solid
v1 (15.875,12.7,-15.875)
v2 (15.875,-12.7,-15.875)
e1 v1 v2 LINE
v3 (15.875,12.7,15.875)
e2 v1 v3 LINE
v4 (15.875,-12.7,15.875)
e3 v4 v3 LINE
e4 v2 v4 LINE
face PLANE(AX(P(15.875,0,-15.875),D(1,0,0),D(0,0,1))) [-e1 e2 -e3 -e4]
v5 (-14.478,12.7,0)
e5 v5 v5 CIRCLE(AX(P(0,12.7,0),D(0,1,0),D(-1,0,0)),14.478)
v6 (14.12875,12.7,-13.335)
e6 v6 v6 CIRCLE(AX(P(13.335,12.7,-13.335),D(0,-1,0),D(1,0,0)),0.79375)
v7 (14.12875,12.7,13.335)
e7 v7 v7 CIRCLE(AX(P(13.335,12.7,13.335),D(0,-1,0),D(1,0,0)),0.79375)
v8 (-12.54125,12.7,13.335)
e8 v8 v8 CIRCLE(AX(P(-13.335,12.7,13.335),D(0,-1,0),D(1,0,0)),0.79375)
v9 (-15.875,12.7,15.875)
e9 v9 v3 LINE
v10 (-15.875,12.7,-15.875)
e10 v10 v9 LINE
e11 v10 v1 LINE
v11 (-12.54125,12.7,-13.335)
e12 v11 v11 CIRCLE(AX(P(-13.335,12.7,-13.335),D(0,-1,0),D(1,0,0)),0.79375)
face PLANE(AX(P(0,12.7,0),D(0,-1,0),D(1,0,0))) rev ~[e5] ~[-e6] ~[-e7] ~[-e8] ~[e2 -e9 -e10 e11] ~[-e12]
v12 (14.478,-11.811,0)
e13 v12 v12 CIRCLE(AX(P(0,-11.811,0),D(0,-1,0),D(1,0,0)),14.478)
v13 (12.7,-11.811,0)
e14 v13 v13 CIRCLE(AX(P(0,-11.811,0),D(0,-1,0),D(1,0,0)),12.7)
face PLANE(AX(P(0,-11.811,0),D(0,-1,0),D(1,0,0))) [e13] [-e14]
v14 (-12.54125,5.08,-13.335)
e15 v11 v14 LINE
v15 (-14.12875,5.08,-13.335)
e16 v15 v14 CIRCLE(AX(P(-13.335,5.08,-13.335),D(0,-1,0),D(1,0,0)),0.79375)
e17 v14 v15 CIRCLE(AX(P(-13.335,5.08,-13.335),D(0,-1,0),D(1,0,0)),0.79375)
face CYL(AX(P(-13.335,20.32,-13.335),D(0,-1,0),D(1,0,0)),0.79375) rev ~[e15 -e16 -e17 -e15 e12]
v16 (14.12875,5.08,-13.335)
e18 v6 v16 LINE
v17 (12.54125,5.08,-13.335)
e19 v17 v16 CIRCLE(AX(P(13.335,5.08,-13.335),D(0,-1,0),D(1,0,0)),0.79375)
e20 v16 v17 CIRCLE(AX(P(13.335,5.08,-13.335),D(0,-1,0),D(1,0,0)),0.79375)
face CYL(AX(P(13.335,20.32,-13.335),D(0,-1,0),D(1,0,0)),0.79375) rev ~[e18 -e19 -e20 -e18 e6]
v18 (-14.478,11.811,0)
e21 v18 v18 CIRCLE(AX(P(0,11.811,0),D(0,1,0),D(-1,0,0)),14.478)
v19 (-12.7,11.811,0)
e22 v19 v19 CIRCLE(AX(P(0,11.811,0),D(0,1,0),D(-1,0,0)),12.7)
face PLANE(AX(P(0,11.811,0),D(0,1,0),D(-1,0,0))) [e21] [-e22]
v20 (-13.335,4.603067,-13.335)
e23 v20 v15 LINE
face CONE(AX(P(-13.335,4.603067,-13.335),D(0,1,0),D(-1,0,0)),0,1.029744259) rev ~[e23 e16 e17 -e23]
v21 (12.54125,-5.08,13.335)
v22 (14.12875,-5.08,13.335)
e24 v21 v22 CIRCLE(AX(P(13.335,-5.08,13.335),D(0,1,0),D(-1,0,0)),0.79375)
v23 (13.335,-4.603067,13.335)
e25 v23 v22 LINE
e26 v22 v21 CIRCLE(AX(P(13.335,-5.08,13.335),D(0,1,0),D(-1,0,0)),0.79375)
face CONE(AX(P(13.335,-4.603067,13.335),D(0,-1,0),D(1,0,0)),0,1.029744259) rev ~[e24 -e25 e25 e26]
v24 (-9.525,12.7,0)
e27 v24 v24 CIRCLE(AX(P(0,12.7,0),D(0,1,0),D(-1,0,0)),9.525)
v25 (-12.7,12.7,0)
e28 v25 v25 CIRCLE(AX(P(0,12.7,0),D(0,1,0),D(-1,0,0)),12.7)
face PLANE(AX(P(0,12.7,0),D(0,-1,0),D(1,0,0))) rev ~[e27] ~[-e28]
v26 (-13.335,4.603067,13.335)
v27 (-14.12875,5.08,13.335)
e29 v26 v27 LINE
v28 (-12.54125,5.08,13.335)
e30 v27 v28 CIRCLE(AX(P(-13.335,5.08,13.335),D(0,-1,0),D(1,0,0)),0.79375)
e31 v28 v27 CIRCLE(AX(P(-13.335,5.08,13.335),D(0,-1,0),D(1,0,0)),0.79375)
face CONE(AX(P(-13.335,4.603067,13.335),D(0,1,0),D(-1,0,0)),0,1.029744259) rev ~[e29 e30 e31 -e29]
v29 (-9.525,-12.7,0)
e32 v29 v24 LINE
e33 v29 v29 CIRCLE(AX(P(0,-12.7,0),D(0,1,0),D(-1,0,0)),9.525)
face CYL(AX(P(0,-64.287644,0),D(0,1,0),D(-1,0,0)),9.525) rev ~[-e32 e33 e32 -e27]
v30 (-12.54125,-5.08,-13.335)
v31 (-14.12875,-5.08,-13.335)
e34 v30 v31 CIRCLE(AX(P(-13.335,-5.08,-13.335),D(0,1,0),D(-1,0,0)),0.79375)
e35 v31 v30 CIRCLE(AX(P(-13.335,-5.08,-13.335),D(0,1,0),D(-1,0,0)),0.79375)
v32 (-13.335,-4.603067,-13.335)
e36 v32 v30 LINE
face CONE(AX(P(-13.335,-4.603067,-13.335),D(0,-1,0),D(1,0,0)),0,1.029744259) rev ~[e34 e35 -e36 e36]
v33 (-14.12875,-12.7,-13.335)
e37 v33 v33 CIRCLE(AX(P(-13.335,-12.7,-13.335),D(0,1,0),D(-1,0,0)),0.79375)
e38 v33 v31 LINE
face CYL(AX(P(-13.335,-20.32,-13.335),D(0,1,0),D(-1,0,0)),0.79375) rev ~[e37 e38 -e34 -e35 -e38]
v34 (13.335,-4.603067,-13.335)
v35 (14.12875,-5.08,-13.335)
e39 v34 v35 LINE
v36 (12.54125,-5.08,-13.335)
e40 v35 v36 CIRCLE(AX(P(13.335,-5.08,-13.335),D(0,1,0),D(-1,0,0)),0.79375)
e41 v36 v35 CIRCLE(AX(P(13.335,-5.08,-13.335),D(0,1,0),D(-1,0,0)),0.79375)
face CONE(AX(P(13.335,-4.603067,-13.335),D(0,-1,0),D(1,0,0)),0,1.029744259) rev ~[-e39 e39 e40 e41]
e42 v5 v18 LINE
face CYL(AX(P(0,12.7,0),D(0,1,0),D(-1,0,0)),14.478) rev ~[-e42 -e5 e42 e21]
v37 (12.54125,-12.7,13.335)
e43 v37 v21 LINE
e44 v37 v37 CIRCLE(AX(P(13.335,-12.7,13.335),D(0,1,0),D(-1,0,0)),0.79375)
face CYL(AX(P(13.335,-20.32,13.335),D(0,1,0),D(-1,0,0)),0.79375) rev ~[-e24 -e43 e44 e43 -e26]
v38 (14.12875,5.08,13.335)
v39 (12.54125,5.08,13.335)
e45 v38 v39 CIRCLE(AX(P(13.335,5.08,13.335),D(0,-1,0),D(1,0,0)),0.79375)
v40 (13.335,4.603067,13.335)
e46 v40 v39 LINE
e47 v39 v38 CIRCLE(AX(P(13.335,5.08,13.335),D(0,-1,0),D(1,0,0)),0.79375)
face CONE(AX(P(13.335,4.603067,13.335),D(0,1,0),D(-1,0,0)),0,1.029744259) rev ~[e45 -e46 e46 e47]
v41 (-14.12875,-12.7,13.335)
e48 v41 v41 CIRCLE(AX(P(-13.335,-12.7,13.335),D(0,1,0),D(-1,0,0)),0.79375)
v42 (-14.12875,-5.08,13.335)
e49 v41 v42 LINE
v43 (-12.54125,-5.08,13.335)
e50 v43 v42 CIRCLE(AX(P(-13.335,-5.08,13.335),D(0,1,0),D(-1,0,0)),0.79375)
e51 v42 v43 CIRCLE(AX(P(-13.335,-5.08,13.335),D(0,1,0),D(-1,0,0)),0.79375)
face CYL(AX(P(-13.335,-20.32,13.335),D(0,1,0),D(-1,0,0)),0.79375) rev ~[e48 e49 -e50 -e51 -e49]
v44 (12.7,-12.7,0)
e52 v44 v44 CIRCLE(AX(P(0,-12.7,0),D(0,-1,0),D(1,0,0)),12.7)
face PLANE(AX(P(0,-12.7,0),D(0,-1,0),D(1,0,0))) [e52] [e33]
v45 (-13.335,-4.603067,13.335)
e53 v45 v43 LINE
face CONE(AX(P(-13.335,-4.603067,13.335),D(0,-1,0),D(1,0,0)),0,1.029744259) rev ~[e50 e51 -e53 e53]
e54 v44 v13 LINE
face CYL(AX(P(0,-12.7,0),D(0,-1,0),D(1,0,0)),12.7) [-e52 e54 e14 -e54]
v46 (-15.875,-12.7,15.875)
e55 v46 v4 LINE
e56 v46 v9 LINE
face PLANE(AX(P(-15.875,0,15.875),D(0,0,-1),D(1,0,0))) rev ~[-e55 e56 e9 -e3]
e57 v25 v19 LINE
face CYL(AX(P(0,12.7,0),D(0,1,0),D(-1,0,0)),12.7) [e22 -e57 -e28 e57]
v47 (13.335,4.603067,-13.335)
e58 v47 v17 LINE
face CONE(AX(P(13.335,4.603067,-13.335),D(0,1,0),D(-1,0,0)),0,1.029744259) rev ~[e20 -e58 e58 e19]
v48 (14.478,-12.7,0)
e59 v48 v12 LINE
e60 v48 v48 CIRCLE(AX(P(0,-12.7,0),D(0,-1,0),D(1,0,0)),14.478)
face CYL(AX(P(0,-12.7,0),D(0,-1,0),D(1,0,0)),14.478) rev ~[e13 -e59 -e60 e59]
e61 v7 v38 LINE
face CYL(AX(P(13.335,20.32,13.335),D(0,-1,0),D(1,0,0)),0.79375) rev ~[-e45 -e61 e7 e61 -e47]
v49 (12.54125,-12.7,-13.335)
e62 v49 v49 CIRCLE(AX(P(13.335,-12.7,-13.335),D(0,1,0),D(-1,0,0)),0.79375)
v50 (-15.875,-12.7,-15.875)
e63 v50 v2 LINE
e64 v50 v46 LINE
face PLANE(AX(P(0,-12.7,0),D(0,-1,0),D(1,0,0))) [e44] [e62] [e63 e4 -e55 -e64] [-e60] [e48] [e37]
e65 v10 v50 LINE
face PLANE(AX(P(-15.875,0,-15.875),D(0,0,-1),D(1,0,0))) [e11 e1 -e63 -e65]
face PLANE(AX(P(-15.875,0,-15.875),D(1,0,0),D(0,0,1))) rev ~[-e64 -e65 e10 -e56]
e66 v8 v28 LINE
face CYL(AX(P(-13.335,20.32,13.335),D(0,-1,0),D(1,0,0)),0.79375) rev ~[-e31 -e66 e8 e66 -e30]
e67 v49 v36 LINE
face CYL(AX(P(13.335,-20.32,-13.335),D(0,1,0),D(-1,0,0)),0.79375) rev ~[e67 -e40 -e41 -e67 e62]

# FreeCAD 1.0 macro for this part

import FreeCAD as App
import Part
import Sketcher

V = App.Vector
Q = App.Units.Quantity


def add_polygon(sketch, points):
    """Adds a closed chain of lines whose ends are joined by coincident constraints."""
    first, n = sketch.GeometryCount, len(points)
    for a, b in zip(points, points[1:] + points[:1]):
        sketch.addGeometry(Part.LineSegment(App.Vector(*a, 0), App.Vector(*b, 0)), False)
    for i in range(n):
        sketch.addConstraint(Sketcher.Constraint("Coincident", first + i, 2, first + (i + 1) % n, 1))

doc = App.newDocument("Part")
params = doc.addObject("Spreadsheet::Sheet", "Params")
for row, (alias, value) in enumerate([
    ("sketch1_width", "1.25 in"),
    ("pad1_length", "1 in"),
    ("sketch2_diameter", "0.75 in"),
    ("hole_diameter", "0.75 in"),
    ("sketch3_diameter", "1 in"),
    ("sketch3_diameter2", "1.14 in"),
    ("pocket1_length", "0.035 in"),
    ("sketch4_diameter", "1 in"),
    ("sketch4_diameter2", "1.14 in"),
    ("pocket2_length", "0.035 in"),
    ("sketch5_diameter", "0.0625 in"),
    ("hole2_diameter", "0.0625 in"),
    ("hole2_depth", "0.3 in"),
    ("sketch6_diameter", "0.0625 in"),
    ("hole3_diameter", "0.0625 in"),
    ("hole3_depth", "0.3 in"),
], start=1):
    params.set(f"A{row}", alias)
    params.set(f"B{row}", "=" + value)
    params.setAlias(f"B{row}", alias)

body = doc.addObject("PartDesign::Body", "Body")

sketch1 = body.newObject("Sketcher::SketchObject", "Sketch")
sketch1.AttachmentSupport = (doc.getObject("XZ_Plane"), [""])
sketch1.MapMode = "FlatFace"
add_polygon(sketch1, [(-16, 16), (-16, -16), (16, -16), (16, 16)])
sketch1.addConstraint(Sketcher.Constraint("Vertical", 0))
sketch1.addConstraint(Sketcher.Constraint("Horizontal", 1))
sketch1.addConstraint(Sketcher.Constraint("Vertical", 2))
sketch1.addConstraint(Sketcher.Constraint("Horizontal", 3))
sketch1.addConstraint(Sketcher.Constraint("Symmetric", 0, 2, 2, 2, -1, 1))
sketch1.addConstraint(Sketcher.Constraint("Equal", 3, 0))
sketch1.addConstraint(Sketcher.Constraint("DistanceX", 1, 1, 1, 2, Q("1.25 in")))
sketch1.setExpression("Constraints[10]", "Params.sketch1_width")
pad1 = body.newObject("PartDesign::Pad", "Pad")
pad1.Profile = sketch1
pad1.setExpression("Length", "Params.pad1_length")
pad1.Midplane = True

sketch2 = body.newObject("Sketcher::SketchObject", "Sketch001")
sketch2.AttachmentSupport = (doc.getObject("XZ_Plane"), [""])
sketch2.MapMode = "FlatFace"
sketch2.AttachmentOffset = App.Placement(V(0, 0, 0.5 * 25.4), App.Rotation())
sketch2.addGeometry(Part.Circle(V(0, 0, 0), V(0, 0, 1), 10), False)
sketch2.addConstraint(Sketcher.Constraint("Coincident", 0, 3, -1, 1))
sketch2.addConstraint(Sketcher.Constraint("Diameter", 0, Q("0.75 in")))
sketch2.setExpression("Constraints[1]", "Params.sketch2_diameter")
doc.recompute()
hole = body.newObject("PartDesign::Hole", "Hole")
hole.Profile = sketch2
hole.ThreadType = "None"
hole.setExpression("Diameter", "Params.hole_diameter")
hole.DepthType = "ThroughAll"

sketch3 = body.newObject("Sketcher::SketchObject", "Sketch002")
sketch3.AttachmentSupport = (doc.getObject("XZ_Plane"), [""])
sketch3.MapMode = "FlatFace"
sketch3.AttachmentOffset = App.Placement(V(0, 0, 0.5 * 25.4), App.Rotation())
sketch3.addGeometry(Part.Circle(V(0, 0, 0), V(0, 0, 1), 14), False)
sketch3.addGeometry(Part.Circle(V(0, 0, 0), V(0, 0, 1), 13), False)
sketch3.addConstraint(Sketcher.Constraint("Coincident", 0, 3, -1, 1))
sketch3.addConstraint(Sketcher.Constraint("Coincident", 1, 3, -1, 1))
sketch3.addConstraint(Sketcher.Constraint("Diameter", 1, Q("1 in")))
sketch3.addConstraint(Sketcher.Constraint("Diameter", 0, Q("1.14 in")))
sketch3.setExpression("Constraints[2]", "Params.sketch3_diameter")
sketch3.setExpression("Constraints[3]", "Params.sketch3_diameter2")
pocket1 = body.newObject("PartDesign::Pocket", "Pocket")
pocket1.Profile = sketch3
pocket1.setExpression("Length", "Params.pocket1_length")

sketch4 = body.newObject("Sketcher::SketchObject", "Sketch003")
sketch4.AttachmentSupport = (doc.getObject("XZ_Plane"), [""])
sketch4.MapMode = "FlatFace"
sketch4.AttachmentOffset = App.Placement(V(0, 0, -0.5 * 25.4), App.Rotation())
sketch4.addGeometry(Part.Circle(V(0, 0, 0), V(0, 0, 1), 14), False)
sketch4.addGeometry(Part.Circle(V(0, 0, 0), V(0, 0, 1), 13), False)
sketch4.addConstraint(Sketcher.Constraint("Coincident", 0, 3, -1, 1))
sketch4.addConstraint(Sketcher.Constraint("Coincident", 1, 3, -1, 1))
sketch4.addConstraint(Sketcher.Constraint("Diameter", 1, Q("1 in")))
sketch4.addConstraint(Sketcher.Constraint("Diameter", 0, Q("1.14 in")))
sketch4.setExpression("Constraints[2]", "Params.sketch4_diameter")
sketch4.setExpression("Constraints[3]", "Params.sketch4_diameter2")
pocket2 = body.newObject("PartDesign::Pocket", "Pocket001")
pocket2.Profile = sketch4
pocket2.setExpression("Length", "Params.pocket2_length")
pocket2.Reversed = True

sketch5 = body.newObject("Sketcher::SketchObject", "Sketch004")
sketch5.AttachmentSupport = (doc.getObject("XZ_Plane"), [""])
sketch5.MapMode = "FlatFace"
sketch5.AttachmentOffset = App.Placement(V(0, 0, -0.5 * 25.4), App.Rotation())
sketch5.addGeometry(Part.Circle(V(13.3, 13.3, 0), V(0, 0, 1), 0.8), False)
sketch5.addGeometry(Part.Circle(V(-13.3, 13.3, 0), V(0, 0, 1), 0.8), False)
sketch5.addGeometry(Part.Circle(V(-13.3, -13.3, 0), V(0, 0, 1), 0.8), False)
sketch5.addGeometry(Part.Circle(V(13.3, -13.3, 0), V(0, 0, 1), 0.8), False)
sketch5.addConstraint(Sketcher.Constraint("Equal", 0, 1))
sketch5.addConstraint(Sketcher.Constraint("Equal", 1, 2))
sketch5.addConstraint(Sketcher.Constraint("Equal", 2, 3))
sketch5.addConstraint(Sketcher.Constraint("Symmetric", 0, 3, 2, 3, -1, 1))
sketch5.addConstraint(Sketcher.Constraint("Symmetric", 1, 3, 3, 3, -1, 1))
sketch5.addConstraint(Sketcher.Constraint("Symmetric", 0, 3, 1, 3, -2))
sketch5.addConstraint(Sketcher.Constraint("Diameter", 0, Q("0.0625 in")))
sketch5.addConstraint(Sketcher.Constraint("DistanceX", 1, 3, 0, 3, Q("1.05 in")))
sketch5.addConstraint(Sketcher.Constraint("DistanceY", 2, 3, 1, 3, Q("1.05 in")))
sketch5.setExpression("Constraints[6]", "Params.sketch5_diameter")
doc.recompute()
hole2 = body.newObject("PartDesign::Hole", "Hole001")
hole2.Profile = sketch5
hole2.ThreadType = "None"
hole2.setExpression("Diameter", "Params.hole2_diameter")
hole2.DepthType = "Dimension"
hole2.setExpression("Depth", "Params.hole2_depth")
hole2.DrillPoint = "Angled"
hole2.DrillPointAngle = 118
hole2.Reversed = True

sketch6 = body.newObject("Sketcher::SketchObject", "Sketch005")
sketch6.AttachmentSupport = (doc.getObject("XZ_Plane"), [""])
sketch6.MapMode = "FlatFace"
sketch6.AttachmentOffset = App.Placement(V(0, 0, 0.5 * 25.4), App.Rotation())
sketch6.addGeometry(Part.Circle(V(-13.3, 13.3, 0), V(0, 0, 1), 0.8), False)
sketch6.addGeometry(Part.Circle(V(13.3, 13.3, 0), V(0, 0, 1), 0.8), False)
sketch6.addGeometry(Part.Circle(V(13.3, -13.3, 0), V(0, 0, 1), 0.8), False)
sketch6.addGeometry(Part.Circle(V(-13.3, -13.3, 0), V(0, 0, 1), 0.8), False)
sketch6.addConstraint(Sketcher.Constraint("Equal", 0, 1))
sketch6.addConstraint(Sketcher.Constraint("Equal", 1, 2))
sketch6.addConstraint(Sketcher.Constraint("Equal", 2, 3))
sketch6.addConstraint(Sketcher.Constraint("Symmetric", 0, 3, 2, 3, -1, 1))
sketch6.addConstraint(Sketcher.Constraint("Symmetric", 1, 3, 3, 3, -1, 1))
sketch6.addConstraint(Sketcher.Constraint("Symmetric", 0, 3, 1, 3, -2))
sketch6.addConstraint(Sketcher.Constraint("Diameter", 0, Q("0.0625 in")))
sketch6.addConstraint(Sketcher.Constraint("DistanceX", 0, 3, 1, 3, Q("1.05 in")))
sketch6.addConstraint(Sketcher.Constraint("DistanceY", 2, 3, 1, 3, Q("1.05 in")))
sketch6.setExpression("Constraints[6]", "Params.sketch6_diameter")
doc.recompute()
hole3 = body.newObject("PartDesign::Hole", "Hole002")
hole3.Profile = sketch6
hole3.ThreadType = "None"
hole3.setExpression("Diameter", "Params.hole3_diameter")
hole3.DepthType = "Dimension"
hole3.setExpression("Depth", "Params.hole3_depth")
hole3.DrillPoint = "Angled"
hole3.DrillPointAngle = 118

doc.recompute()
